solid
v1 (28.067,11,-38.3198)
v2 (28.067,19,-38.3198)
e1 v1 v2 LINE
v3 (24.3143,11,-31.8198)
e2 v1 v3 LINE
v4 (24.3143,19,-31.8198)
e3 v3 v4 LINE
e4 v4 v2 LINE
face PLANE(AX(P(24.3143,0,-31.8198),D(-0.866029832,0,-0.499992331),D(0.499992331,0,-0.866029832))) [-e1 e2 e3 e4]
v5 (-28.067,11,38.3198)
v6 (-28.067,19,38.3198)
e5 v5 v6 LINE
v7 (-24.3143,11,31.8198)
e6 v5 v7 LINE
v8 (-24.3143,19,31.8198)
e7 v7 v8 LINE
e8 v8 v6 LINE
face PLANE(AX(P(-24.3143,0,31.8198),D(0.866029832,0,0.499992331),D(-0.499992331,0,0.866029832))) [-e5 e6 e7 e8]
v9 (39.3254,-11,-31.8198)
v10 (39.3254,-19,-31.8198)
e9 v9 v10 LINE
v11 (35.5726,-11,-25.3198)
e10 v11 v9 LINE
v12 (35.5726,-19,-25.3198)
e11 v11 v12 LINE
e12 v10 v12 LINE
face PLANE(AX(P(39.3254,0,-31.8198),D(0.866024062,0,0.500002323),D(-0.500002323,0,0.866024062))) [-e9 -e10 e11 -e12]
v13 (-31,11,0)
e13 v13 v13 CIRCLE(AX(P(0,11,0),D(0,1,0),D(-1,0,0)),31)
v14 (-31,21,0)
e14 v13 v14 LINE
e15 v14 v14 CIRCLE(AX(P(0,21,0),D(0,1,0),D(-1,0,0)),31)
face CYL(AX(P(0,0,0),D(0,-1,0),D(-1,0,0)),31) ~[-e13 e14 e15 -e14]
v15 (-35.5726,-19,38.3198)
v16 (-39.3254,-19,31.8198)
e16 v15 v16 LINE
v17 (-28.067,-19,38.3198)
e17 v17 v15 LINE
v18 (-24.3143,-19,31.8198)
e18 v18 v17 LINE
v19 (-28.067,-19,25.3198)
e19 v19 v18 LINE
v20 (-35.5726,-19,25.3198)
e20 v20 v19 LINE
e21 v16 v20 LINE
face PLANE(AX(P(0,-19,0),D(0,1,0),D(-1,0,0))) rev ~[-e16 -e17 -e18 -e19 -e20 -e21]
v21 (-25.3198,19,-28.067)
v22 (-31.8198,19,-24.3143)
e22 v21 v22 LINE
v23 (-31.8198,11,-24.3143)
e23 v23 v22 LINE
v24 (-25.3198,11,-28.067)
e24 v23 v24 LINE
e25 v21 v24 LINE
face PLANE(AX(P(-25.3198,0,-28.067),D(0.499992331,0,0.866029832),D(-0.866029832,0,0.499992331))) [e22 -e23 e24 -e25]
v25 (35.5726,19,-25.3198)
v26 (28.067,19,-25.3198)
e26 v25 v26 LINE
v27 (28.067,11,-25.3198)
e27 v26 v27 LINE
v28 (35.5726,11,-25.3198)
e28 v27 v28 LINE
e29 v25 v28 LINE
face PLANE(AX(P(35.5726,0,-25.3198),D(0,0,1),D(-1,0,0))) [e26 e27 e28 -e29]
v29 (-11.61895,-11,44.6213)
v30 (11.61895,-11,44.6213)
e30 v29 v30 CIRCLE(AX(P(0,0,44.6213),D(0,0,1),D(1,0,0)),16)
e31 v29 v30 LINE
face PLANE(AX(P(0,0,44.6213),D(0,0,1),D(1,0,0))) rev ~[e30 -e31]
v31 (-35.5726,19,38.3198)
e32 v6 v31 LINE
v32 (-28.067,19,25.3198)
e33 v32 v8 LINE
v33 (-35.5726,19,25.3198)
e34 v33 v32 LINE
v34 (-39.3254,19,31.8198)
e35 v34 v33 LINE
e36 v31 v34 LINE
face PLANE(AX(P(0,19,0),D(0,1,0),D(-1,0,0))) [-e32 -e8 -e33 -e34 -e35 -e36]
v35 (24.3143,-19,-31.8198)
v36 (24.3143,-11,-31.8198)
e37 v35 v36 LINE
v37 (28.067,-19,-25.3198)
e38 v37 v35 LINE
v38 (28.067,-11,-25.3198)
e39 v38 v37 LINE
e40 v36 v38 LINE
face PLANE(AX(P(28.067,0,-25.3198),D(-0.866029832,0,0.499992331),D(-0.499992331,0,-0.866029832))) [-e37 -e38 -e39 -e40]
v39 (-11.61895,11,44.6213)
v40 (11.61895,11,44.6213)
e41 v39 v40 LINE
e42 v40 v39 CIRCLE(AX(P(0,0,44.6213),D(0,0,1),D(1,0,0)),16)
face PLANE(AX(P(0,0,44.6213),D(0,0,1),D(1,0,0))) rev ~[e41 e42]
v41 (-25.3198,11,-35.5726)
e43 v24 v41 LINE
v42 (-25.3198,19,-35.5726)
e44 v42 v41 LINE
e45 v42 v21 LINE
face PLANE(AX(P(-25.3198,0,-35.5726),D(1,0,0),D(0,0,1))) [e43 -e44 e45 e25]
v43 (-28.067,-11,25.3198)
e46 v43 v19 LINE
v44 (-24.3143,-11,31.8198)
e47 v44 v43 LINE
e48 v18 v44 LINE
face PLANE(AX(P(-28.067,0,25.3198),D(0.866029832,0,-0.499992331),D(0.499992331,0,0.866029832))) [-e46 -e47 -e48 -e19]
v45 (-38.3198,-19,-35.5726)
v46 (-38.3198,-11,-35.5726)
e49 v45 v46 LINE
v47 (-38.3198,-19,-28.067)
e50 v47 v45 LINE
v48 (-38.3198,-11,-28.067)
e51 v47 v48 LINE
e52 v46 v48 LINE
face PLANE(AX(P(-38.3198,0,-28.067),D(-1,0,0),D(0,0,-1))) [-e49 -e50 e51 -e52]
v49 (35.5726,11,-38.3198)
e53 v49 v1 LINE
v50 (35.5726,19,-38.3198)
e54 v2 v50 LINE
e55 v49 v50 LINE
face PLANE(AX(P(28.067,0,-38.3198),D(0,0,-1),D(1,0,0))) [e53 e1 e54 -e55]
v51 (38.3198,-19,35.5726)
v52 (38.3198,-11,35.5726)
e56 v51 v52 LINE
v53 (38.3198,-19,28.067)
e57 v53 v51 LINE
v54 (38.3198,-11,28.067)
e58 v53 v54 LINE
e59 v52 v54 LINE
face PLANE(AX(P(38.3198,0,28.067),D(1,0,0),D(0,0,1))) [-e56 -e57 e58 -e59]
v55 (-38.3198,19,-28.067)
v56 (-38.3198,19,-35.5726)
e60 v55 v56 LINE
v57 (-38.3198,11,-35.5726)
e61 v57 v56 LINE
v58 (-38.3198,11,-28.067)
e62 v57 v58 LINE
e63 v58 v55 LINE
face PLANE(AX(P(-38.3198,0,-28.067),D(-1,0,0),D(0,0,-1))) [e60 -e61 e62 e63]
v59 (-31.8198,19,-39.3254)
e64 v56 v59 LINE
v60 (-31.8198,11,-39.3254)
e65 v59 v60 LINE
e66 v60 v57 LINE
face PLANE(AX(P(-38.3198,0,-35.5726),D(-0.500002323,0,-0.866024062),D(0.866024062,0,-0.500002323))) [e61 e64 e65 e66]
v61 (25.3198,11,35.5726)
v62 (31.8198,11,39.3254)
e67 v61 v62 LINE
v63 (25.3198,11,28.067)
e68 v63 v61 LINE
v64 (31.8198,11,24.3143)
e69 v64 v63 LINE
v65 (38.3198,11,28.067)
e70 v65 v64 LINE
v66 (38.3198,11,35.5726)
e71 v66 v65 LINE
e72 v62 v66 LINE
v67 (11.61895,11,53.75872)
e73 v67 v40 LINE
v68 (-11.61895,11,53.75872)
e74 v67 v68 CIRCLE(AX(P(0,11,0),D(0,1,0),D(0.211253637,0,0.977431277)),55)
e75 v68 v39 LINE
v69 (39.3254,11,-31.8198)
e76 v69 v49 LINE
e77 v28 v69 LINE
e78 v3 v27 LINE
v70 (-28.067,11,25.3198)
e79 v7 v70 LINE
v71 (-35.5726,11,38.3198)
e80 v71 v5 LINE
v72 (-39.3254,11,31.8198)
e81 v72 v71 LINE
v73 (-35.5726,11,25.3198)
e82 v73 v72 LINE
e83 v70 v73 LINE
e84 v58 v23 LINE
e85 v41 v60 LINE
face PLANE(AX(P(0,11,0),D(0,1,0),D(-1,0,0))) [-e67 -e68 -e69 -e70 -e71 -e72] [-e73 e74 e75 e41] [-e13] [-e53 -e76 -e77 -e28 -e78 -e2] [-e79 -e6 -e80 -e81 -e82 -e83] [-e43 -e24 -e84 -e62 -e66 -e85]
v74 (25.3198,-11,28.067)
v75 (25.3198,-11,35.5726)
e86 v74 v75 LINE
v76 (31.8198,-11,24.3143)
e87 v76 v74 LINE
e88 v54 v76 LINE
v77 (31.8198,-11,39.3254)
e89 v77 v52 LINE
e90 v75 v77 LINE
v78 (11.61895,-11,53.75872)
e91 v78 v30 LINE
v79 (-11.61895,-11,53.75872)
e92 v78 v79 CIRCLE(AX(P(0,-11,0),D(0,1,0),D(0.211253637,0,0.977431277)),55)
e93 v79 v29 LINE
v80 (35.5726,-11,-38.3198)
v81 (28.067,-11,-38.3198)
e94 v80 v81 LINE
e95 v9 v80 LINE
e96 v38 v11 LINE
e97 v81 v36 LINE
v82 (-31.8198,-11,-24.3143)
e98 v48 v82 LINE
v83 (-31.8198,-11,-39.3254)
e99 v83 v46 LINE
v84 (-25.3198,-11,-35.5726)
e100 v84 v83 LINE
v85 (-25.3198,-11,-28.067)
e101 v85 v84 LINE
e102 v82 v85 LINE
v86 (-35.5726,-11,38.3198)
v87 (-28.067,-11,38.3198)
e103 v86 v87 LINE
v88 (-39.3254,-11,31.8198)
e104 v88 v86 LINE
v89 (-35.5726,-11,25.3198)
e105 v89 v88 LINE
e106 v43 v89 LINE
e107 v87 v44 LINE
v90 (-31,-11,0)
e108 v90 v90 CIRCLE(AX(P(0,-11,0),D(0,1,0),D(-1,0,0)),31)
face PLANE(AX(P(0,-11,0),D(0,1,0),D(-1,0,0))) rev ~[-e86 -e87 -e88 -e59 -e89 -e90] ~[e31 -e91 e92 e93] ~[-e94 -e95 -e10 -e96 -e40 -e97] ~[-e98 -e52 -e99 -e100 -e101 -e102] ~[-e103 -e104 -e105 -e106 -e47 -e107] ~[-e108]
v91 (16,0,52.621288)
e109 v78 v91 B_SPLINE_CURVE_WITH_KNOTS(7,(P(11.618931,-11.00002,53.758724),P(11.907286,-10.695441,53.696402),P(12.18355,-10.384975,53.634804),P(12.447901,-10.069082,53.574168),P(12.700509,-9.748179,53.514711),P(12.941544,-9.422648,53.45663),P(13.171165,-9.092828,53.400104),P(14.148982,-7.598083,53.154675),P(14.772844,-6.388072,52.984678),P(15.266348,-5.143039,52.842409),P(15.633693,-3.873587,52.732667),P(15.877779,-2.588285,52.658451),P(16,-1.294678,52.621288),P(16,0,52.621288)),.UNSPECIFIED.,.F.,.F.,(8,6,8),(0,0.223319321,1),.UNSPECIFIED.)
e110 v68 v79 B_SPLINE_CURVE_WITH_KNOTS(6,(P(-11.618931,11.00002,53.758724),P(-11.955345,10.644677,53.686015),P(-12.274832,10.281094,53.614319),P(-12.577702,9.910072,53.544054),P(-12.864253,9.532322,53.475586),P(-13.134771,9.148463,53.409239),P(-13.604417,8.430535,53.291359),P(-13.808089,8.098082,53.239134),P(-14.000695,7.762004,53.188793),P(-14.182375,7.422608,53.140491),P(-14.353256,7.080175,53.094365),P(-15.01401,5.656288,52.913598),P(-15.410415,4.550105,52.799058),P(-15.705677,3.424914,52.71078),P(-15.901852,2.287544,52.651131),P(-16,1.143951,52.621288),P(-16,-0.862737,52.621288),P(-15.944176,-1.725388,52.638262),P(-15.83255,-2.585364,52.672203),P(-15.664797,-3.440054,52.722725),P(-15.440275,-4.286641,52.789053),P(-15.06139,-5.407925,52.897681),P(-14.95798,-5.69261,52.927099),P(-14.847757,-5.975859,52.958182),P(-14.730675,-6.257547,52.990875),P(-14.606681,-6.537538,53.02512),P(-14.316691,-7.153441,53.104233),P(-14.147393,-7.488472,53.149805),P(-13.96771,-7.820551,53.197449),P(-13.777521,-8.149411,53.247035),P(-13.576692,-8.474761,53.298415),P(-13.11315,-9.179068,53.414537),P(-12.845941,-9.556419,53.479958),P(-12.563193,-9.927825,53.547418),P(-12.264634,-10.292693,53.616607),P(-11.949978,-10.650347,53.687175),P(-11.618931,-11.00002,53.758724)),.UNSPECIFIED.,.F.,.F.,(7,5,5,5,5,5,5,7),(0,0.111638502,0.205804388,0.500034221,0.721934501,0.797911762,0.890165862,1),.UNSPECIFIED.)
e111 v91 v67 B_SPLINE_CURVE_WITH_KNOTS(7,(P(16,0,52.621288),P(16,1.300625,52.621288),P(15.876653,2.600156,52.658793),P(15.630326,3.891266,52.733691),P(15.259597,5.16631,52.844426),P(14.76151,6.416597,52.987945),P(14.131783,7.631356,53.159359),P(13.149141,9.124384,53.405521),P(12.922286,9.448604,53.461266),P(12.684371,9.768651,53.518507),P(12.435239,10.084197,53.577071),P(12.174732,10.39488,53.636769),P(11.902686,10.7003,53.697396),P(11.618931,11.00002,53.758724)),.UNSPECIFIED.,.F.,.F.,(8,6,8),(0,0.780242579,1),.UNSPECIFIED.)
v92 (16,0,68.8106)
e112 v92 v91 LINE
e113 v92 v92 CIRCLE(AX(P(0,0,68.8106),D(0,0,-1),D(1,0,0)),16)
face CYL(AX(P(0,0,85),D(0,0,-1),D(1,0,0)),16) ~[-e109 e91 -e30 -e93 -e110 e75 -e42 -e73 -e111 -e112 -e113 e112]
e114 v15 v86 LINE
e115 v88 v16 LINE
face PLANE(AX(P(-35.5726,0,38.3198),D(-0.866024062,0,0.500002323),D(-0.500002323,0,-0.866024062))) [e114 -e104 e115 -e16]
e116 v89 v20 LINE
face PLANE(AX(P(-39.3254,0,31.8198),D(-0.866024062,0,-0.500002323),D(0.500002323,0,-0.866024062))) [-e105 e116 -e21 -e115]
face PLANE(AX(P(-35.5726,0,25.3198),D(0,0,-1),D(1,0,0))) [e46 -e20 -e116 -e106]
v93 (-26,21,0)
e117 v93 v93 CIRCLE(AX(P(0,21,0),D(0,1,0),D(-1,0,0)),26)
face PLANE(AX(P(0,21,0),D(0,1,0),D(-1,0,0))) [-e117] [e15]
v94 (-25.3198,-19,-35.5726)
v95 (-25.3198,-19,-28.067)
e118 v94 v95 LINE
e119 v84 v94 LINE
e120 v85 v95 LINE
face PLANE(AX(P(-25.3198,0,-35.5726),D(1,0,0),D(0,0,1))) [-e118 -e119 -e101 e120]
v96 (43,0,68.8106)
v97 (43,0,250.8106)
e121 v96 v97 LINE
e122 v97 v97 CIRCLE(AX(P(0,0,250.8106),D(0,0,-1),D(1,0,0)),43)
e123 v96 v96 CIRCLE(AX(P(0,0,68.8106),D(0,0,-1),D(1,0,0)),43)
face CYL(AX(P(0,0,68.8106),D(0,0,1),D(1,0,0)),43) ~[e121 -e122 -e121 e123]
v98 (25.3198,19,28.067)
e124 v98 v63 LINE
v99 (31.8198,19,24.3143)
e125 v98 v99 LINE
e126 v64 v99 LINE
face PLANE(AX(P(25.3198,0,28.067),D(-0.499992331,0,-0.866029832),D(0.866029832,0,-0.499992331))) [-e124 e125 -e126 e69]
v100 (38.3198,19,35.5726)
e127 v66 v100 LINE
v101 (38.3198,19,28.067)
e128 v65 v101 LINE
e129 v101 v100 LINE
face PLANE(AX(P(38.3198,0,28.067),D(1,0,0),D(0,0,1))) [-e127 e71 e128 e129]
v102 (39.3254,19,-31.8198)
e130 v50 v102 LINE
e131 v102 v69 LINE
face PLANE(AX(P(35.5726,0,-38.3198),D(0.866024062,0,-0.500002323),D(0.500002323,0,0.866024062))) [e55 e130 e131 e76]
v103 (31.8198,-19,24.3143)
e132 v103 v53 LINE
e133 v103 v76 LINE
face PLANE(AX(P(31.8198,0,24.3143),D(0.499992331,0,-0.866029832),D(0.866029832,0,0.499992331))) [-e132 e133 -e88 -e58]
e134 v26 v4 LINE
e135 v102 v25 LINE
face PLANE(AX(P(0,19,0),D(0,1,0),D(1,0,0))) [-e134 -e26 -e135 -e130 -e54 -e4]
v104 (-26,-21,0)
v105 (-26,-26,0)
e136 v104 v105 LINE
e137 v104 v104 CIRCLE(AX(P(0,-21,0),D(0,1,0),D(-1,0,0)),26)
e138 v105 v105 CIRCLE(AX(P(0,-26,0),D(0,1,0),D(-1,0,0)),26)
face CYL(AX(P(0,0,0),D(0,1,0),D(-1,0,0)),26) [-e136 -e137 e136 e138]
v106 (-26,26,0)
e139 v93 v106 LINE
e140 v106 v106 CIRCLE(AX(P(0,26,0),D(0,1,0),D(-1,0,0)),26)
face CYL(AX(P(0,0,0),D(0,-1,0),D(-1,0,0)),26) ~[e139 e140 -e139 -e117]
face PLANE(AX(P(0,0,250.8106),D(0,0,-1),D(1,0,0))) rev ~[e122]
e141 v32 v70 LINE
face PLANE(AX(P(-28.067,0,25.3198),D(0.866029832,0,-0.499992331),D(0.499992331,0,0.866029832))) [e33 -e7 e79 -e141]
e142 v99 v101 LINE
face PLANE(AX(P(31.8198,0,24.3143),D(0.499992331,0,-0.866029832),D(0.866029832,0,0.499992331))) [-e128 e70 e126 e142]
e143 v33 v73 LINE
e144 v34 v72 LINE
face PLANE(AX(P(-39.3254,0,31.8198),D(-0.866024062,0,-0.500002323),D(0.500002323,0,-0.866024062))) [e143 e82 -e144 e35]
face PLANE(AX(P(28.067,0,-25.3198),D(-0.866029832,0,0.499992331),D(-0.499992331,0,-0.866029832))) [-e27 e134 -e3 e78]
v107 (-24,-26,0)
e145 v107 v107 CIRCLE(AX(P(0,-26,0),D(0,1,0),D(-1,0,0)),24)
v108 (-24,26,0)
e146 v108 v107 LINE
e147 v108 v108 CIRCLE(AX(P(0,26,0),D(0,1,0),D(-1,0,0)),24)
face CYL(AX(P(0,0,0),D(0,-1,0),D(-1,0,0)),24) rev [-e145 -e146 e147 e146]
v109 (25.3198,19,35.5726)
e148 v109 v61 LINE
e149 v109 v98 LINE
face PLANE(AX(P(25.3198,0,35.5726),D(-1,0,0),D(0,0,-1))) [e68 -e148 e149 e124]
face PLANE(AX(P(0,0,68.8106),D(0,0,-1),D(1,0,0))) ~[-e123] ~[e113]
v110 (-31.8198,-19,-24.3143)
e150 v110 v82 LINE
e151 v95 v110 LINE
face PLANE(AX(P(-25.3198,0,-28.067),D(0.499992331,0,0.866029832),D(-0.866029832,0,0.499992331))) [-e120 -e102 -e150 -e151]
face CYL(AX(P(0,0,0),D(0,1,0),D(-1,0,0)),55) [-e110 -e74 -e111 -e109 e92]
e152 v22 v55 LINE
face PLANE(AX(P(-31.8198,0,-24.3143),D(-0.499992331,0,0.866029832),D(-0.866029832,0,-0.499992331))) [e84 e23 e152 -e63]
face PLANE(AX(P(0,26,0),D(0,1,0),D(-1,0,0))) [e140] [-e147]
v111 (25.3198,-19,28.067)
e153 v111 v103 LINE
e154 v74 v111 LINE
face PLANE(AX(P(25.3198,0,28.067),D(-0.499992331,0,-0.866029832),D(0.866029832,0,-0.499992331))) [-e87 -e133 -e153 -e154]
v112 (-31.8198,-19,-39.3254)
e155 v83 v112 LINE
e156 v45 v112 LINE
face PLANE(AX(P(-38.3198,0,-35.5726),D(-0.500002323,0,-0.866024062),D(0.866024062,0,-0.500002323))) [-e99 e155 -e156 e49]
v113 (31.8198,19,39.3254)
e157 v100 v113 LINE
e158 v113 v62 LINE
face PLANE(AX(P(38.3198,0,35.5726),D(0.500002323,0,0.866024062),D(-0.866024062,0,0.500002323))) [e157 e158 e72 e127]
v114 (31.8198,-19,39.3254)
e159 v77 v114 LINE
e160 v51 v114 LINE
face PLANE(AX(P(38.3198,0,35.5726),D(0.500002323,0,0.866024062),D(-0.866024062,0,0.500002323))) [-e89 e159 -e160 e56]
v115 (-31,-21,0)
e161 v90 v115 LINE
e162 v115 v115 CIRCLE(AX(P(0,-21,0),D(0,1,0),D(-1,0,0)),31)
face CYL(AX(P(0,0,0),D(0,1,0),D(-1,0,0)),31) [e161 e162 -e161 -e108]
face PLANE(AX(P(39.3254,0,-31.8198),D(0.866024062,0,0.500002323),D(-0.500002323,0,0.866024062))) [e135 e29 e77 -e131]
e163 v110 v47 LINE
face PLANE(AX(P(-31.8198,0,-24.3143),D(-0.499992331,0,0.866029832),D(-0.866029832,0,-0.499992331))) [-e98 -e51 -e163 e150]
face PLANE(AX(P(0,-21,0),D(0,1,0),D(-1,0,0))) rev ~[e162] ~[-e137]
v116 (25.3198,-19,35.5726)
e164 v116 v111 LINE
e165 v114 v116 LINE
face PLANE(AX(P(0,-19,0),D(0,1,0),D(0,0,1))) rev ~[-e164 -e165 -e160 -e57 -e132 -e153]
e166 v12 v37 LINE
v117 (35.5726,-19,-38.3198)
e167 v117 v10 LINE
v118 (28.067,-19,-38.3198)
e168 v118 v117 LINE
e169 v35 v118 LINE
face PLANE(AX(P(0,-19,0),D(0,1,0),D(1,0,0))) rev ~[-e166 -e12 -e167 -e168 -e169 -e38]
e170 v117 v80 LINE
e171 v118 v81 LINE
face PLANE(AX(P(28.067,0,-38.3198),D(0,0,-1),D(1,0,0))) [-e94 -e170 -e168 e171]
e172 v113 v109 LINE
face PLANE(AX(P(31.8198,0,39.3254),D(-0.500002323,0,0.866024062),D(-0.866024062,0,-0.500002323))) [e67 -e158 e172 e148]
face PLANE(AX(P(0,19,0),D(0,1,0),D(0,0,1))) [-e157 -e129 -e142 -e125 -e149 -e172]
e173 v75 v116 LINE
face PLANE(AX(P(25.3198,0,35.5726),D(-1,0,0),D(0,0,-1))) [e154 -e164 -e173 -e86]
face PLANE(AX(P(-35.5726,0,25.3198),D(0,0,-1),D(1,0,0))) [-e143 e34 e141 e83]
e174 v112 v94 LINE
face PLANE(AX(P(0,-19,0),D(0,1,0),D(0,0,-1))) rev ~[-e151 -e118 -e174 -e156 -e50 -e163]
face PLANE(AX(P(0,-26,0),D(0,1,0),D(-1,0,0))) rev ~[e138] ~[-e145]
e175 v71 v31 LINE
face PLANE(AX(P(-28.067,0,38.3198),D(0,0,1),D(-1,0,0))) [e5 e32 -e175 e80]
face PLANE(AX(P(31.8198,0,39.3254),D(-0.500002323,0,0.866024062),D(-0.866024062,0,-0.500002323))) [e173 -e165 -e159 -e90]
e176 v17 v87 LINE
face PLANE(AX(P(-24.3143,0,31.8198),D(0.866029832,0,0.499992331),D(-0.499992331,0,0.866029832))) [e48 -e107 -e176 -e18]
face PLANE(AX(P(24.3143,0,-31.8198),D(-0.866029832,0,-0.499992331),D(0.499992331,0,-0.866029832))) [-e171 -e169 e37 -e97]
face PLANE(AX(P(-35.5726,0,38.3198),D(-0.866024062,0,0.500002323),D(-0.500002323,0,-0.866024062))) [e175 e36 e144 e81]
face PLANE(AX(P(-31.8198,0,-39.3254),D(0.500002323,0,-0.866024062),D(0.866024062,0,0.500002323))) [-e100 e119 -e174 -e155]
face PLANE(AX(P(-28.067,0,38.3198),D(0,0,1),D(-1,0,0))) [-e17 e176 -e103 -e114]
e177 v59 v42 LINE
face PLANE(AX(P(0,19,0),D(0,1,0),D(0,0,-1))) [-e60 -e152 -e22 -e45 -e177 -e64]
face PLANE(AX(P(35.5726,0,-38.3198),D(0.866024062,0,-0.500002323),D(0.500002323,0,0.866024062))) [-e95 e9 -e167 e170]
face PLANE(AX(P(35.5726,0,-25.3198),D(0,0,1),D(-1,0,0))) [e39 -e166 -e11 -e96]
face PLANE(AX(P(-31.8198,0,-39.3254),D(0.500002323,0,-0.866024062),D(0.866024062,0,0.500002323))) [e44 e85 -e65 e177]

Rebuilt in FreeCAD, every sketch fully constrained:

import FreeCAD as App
import Part
import Sketcher
from FreeCAD import Vector
Q = App.Units.Quantity


def add_polygon(sketch, points):
    """Adds a closed chain of lines whose ends are joined by coincident constraints."""
    first, n = sketch.GeometryCount, len(points)
    for a, b in zip(points, points[1:] + points[:1]):
        sketch.addGeometry(Part.LineSegment(App.Vector(*a, 0), App.Vector(*b, 0)), False)
    for i in range(n):
        sketch.addConstraint(Sketcher.Constraint("Coincident", first + i, 2, first + (i + 1) % n, 1))

doc = App.newDocument("Part")
body = doc.addObject("PartDesign::Body", "Body")

sketch1 = body.newObject("Sketcher::SketchObject", "Sketch")
sketch1.AttachmentSupport = (doc.getObject("XZ_Plane"), [""])
sketch1.MapMode = "FlatFace"
sketch1.addGeometry([
    Part.Circle(Vector(0, 0, 0), Vector(0, 0, 1), 26),
    Part.Circle(Vector(0, 0, 0), Vector(0, 0, 1), 24),
], False)
sketch1.addConstraint([
    Sketcher.Constraint("Coincident", 0, 3, -1, 1),
    Sketcher.Constraint("Coincident", 1, 3, -1, 1),
    Sketcher.Constraint("Diameter", 0, Q("52 mm")),
    Sketcher.Constraint("Diameter", 1, Q("48 mm")),
])
pad1 = body.newObject("PartDesign::Pad", "Pad")
pad1.Profile = sketch1
pad1.Length = 52
pad1.Midplane = True

sketch2 = body.newObject("Sketcher::SketchObject", "Sketch001")
sketch2.AttachmentSupport = (doc.getObject("XZ_Plane"), [""])
sketch2.MapMode = "FlatFace"
sketch2.addGeometry([
    Part.Circle(Vector(0, 0, 0), Vector(0, 0, 1), 31),
    Part.Circle(Vector(0, 0, 0), Vector(0, 0, 1), 26),
], False)
sketch2.addConstraint([
    Sketcher.Constraint("Coincident", 0, 3, -1, 1),
    Sketcher.Constraint("Coincident", 1, 3, -1, 1),
    Sketcher.Constraint("Diameter", 1, Q("52 mm")),
    Sketcher.Constraint("Diameter", 0, Q("62 mm")),
])
pad2 = body.newObject("PartDesign::Pad", "Pad001")
pad2.Profile = sketch2
pad2.Length = 42
pad2.Midplane = True

sketch3 = body.newObject("Sketcher::SketchObject", "Sketch002")
sketch3.AttachmentSupport = (doc.getObject("XZ_Plane"), [""])
sketch3.MapMode = "FlatFace"
sketch3.addGeometry([
    Part.Circle(Vector(0, 0, 0), Vector(0, 0, 1), 55),
    Part.Circle(Vector(0, 0, 0), Vector(0, 0, 1), 31),
], False)
sketch3.addConstraint([
    Sketcher.Constraint("Coincident", 0, 3, -1, 1),
    Sketcher.Constraint("Coincident", 1, 3, -1, 1),
    Sketcher.Constraint("Diameter", 0, Q("110 mm")),
    Sketcher.Constraint("Diameter", 1, Q("62 mm")),
])
pad3 = body.newObject("PartDesign::Pad", "Pad002")
pad3.Profile = sketch3
pad3.Length = 22
pad3.Midplane = True

sketch4 = body.newObject("Sketcher::SketchObject", "Sketch003")
sketch4.AttachmentSupport = (doc.getObject("XZ_Plane"), [""])
sketch4.MapMode = "FlatFace"
add_polygon(sketch4, [(-39, 32), (-36, 38), (-28, 38), (-24, 32), (-28, 25), (-36, 25)])
sketch4.addConstraint([
    Sketcher.Constraint("Horizontal", 1),
    Sketcher.Constraint("Horizontal", 4),
    Sketcher.Constraint("Parallel", 0, 3),
    Sketcher.Constraint("Parallel", 2, 5),
    Sketcher.Constraint("Horizontal", 2, 2, 5, 2),
    Sketcher.Constraint("Vertical", 1, 2, 3, 2),
    Sketcher.Constraint("Vertical", 0, 2, 4, 2),
    Sketcher.Constraint("DistanceY", 3, 2, 1, 2, Q("13 mm")),
    Sketcher.Constraint("Angle", 0, Q("59.9998 deg")),
    Sketcher.Constraint("DistanceX", 1, 1, 1, 2, Q("7.5056 mm")),
    Sketcher.Constraint("DistanceX", 1, 2, -1, 1, Q("28.067 mm")),
    Sketcher.Constraint("DistanceY", -1, 1, 0, 2, Q("38.3198 mm")),
])
pad4 = body.newObject("PartDesign::Pad", "Pad003")
pad4.Profile = sketch4
pad4.Length = 38
pad4.Midplane = True
doc.recompute()

polarpattern = body.newObject("PartDesign::PolarPattern", "PolarPattern")
polarpattern.Originals = [pad4]
polarpattern.Axis = (doc.getObject("Y_Axis"), [""])
polarpattern.Angle = 360
polarpattern.Occurrences = 4
body.Tip = polarpattern

sketch5 = body.newObject("Sketcher::SketchObject", "Sketch004")
sketch5.AttachmentSupport = (doc.getObject("XZ_Plane"), [""])
sketch5.MapMode = "FlatFace"
add_polygon(sketch5, [(16, 45), (0, 45), (0, 85), (16, 85)])
sketch5.addConstraint([
    Sketcher.Constraint("Horizontal", 0),
    Sketcher.Constraint("Vertical", 1),
    Sketcher.Constraint("Horizontal", 2),
    Sketcher.Constraint("Vertical", 3),
    Sketcher.Constraint("PointOnObject", 0, 2, -2),
    Sketcher.Constraint("DistanceX", 0, 2, 0, 1, Q("16 mm")),
    Sketcher.Constraint("DistanceY", -1, 1, 1, 2, Q("85 mm")),
    Sketcher.Constraint("DistanceY", 1, 1, 1, 2, Q("40.3787 mm")),
])
revolution = body.newObject("PartDesign::Revolution", "Revolution")
revolution.Profile = sketch5
revolution.ReferenceAxis = (sketch5, ["V_Axis"])
revolution.Angle = 360

sketch6 = body.newObject("Sketcher::SketchObject", "Sketch005")
sketch6.AttachmentSupport = (doc.getObject("XZ_Plane"), [""])
sketch6.MapMode = "FlatFace"
add_polygon(sketch6, [(43, 69), (0, 69), (0, 251), (43, 251)])
sketch6.addConstraint([
    Sketcher.Constraint("Horizontal", 0),
    Sketcher.Constraint("Vertical", 1),
    Sketcher.Constraint("Horizontal", 2),
    Sketcher.Constraint("Vertical", 3),
    Sketcher.Constraint("PointOnObject", 0, 2, -2),
    Sketcher.Constraint("DistanceX", 0, 2, 0, 1, Q("43 mm")),
    Sketcher.Constraint("DistanceY", 1, 1, 1, 2, Q("182 mm")),
    Sketcher.Constraint("DistanceY", -1, 1, 0, 2, Q("68.8106 mm")),
])
revolution2 = body.newObject("PartDesign::Revolution", "Revolution001")
revolution2.Profile = sketch6
revolution2.ReferenceAxis = (sketch6, ["V_Axis"])
revolution2.Angle = 360

doc.recompute()
